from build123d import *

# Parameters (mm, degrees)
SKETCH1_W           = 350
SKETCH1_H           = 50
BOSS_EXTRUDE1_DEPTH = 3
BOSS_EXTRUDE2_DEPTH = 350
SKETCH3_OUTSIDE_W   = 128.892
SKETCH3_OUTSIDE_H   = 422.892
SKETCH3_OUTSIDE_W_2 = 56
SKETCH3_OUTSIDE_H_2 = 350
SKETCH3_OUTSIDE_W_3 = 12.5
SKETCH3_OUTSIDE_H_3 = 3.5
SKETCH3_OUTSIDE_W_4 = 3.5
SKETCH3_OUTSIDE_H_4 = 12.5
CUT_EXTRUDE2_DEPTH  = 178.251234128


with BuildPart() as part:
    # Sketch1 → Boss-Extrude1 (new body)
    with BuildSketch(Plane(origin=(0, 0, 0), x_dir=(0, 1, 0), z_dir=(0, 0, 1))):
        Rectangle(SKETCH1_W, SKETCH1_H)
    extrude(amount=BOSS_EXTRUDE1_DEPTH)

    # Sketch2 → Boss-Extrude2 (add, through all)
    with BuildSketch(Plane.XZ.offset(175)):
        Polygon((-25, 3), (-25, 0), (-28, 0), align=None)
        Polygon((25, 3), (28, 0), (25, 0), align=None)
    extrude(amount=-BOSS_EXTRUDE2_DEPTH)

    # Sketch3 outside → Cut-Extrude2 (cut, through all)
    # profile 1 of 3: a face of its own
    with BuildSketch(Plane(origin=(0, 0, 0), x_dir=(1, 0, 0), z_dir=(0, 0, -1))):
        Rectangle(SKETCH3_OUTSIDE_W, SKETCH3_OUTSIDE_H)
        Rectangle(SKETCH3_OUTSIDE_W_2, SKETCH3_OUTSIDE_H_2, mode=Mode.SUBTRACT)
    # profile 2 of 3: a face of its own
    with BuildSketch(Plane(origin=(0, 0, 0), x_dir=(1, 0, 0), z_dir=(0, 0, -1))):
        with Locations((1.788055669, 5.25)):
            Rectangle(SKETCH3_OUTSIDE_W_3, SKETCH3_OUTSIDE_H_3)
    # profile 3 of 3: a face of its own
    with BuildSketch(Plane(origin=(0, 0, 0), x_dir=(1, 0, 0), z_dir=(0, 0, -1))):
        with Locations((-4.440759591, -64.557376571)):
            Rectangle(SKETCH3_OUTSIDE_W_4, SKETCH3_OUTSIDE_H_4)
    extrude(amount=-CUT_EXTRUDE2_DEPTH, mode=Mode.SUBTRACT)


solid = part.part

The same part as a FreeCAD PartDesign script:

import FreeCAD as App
import Part
import Sketcher
Q = App.Units.Quantity

doc = App.newDocument("Part")
body = doc.addObject("PartDesign::Body", "Body")

sketch1 = doc.addObject("Sketcher::SketchObject", "Sketch")
body.addObject(sketch1)
sketch1.AttachmentSupport = (doc.XY_Plane, [""])
sketch1.MapMode = "FlatFace"
sketch1.addGeometry(Part.LineSegment(App.Vector(-25, -175, 0), App.Vector(25, -175, 0)), False)
sketch1.addGeometry(Part.LineSegment(App.Vector(25, -175, 0), App.Vector(25, 175, 0)), False)
sketch1.addGeometry(Part.LineSegment(App.Vector(25, 175, 0), App.Vector(-25, 175, 0)), False)
sketch1.addGeometry(Part.LineSegment(App.Vector(-25, 175, 0), App.Vector(-25, -175, 0)), False)
sketch1.addConstraint(Sketcher.Constraint("Coincident", 0, 2, 1, 1))
sketch1.addConstraint(Sketcher.Constraint("Coincident", 1, 2, 2, 1))
sketch1.addConstraint(Sketcher.Constraint("Coincident", 2, 2, 3, 1))
sketch1.addConstraint(Sketcher.Constraint("Coincident", 3, 2, 0, 1))
sketch1.addConstraint(Sketcher.Constraint("Horizontal", 0))
sketch1.addConstraint(Sketcher.Constraint("Vertical", 1))
sketch1.addConstraint(Sketcher.Constraint("Horizontal", 2))
sketch1.addConstraint(Sketcher.Constraint("Vertical", 3))
sketch1.addConstraint(Sketcher.Constraint("Symmetric", 0, 2, 2, 2, -1, 1))
sketch1.addConstraint(Sketcher.Constraint("DistanceX", 0, 1, 0, 2, Q("50 mm")))
sketch1.addConstraint(Sketcher.Constraint("DistanceY", 1, 1, 1, 2, Q("350 mm")))
pad1 = doc.addObject("PartDesign::Pad", "Pad")
body.addObject(pad1)
pad1.Profile = sketch1
pad1.Length = 3

sketch2 = doc.addObject("Sketcher::SketchObject", "Sketch001")
body.addObject(sketch2)
sketch2.AttachmentSupport = (doc.XZ_Plane, [""])
sketch2.MapMode = "FlatFace"
sketch2.AttachmentOffset = App.Placement(App.Vector(0, 0, 175), App.Rotation())
sketch2.addGeometry(Part.LineSegment(App.Vector(-25, 0, 0), App.Vector(-25, 3, 0)), False)
sketch2.addGeometry(Part.LineSegment(App.Vector(-25, 3, 0), App.Vector(-28, 0, 0)), False)
sketch2.addGeometry(Part.LineSegment(App.Vector(-28, 0, 0), App.Vector(-25, 0, 0)), False)
sketch2.addGeometry(Part.LineSegment(App.Vector(28, 0, 0), App.Vector(25, 3, 0)), False)
sketch2.addGeometry(Part.LineSegment(App.Vector(25, 3, 0), App.Vector(25, 0, 0)), False)
sketch2.addGeometry(Part.LineSegment(App.Vector(25, 0, 0), App.Vector(28, 0, 0)), False)
sketch2.addConstraint(Sketcher.Constraint("Coincident", 0, 2, 1, 1))
sketch2.addConstraint(Sketcher.Constraint("Coincident", 1, 2, 2, 1))
sketch2.addConstraint(Sketcher.Constraint("Coincident", 2, 2, 0, 1))
sketch2.addConstraint(Sketcher.Constraint("Coincident", 3, 2, 4, 1))
sketch2.addConstraint(Sketcher.Constraint("Coincident", 4, 2, 5, 1))
sketch2.addConstraint(Sketcher.Constraint("Coincident", 5, 2, 3, 1))
sketch2.addConstraint(Sketcher.Constraint("Vertical", 0))
sketch2.addConstraint(Sketcher.Constraint("Horizontal", 2))
sketch2.addConstraint(Sketcher.Constraint("Vertical", 4))
sketch2.addConstraint(Sketcher.Constraint("Horizontal", 5))
sketch2.addConstraint(Sketcher.Constraint("Symmetric", 2, 2, 4, 2, -1, 1))
sketch2.addConstraint(Sketcher.Constraint("Symmetric", 1, 2, 5, 2, -2))
sketch2.addConstraint(Sketcher.Constraint("Perpendicular", 1, 3))
sketch2.addConstraint(Sketcher.Constraint("Horizontal", 0, 2, 3, 2))
sketch2.addConstraint(Sketcher.Constraint("DistanceX", 2, 1, 2, 2, Q("3 mm")))
sketch2.addConstraint(Sketcher.Constraint("DistanceX", 0, 2, -1, 1, Q("25 mm")))
pad2 = doc.addObject("PartDesign::Pad", "Pad001")
body.addObject(pad2)
pad2.Profile = sketch2
pad2.Type = "UpToLast"
pad2.Reversed = True

sketch3 = doc.addObject("Sketcher::SketchObject", "Sketch002")
body.addObject(sketch3)
sketch3.AttachmentSupport = (doc.XY_Plane, [""])
sketch3.MapMode = "FlatFace"
sketch3.addGeometry(Part.LineSegment(App.Vector(-64.4, -211.4, 0), App.Vector(-64.4, 211.4, 0)), False)
sketch3.addGeometry(Part.LineSegment(App.Vector(-64.4, 211.4, 0), App.Vector(64.4, 211.4, 0)), False)
sketch3.addGeometry(Part.LineSegment(App.Vector(64.4, 211.4, 0), App.Vector(64.4, -211.4, 0)), False)
sketch3.addGeometry(Part.LineSegment(App.Vector(64.4, -211.4, 0), App.Vector(-64.4, -211.4, 0)), False)
sketch3.addGeometry(Part.LineSegment(App.Vector(28, 175, 0), App.Vector(-28, 175, 0)), False)
sketch3.addGeometry(Part.LineSegment(App.Vector(-28, 175, 0), App.Vector(-28, -175, 0)), False)
sketch3.addGeometry(Part.LineSegment(App.Vector(-28, -175, 0), App.Vector(28, -175, 0)), False)
sketch3.addGeometry(Part.LineSegment(App.Vector(28, -175, 0), App.Vector(28, 175, 0)), False)
sketch3.addGeometry(Part.LineSegment(App.Vector(-4.5, -7, 0), App.Vector(-4.5, -3.5, 0)), False)
sketch3.addGeometry(Part.LineSegment(App.Vector(-4.5, -3.5, 0), App.Vector(8, -3.5, 0)), False)
sketch3.addGeometry(Part.LineSegment(App.Vector(8, -3.5, 0), App.Vector(8, -7, 0)), False)
sketch3.addGeometry(Part.LineSegment(App.Vector(8, -7, 0), App.Vector(-4.5, -7, 0)), False)
sketch3.addGeometry(Part.LineSegment(App.Vector(-6.2, 58.3, 0), App.Vector(-6.2, 70.8, 0)), False)
sketch3.addGeometry(Part.LineSegment(App.Vector(-6.2, 70.8, 0), App.Vector(-2.7, 70.8, 0)), False)
sketch3.addGeometry(Part.LineSegment(App.Vector(-2.7, 70.8, 0), App.Vector(-2.7, 58.3, 0)), False)
sketch3.addGeometry(Part.LineSegment(App.Vector(-2.7, 58.3, 0), App.Vector(-6.2, 58.3, 0)), False)
sketch3.addConstraint(Sketcher.Constraint("Coincident", 0, 2, 1, 1))
sketch3.addConstraint(Sketcher.Constraint("Coincident", 1, 2, 2, 1))
sketch3.addConstraint(Sketcher.Constraint("Coincident", 2, 2, 3, 1))
sketch3.addConstraint(Sketcher.Constraint("Coincident", 3, 2, 0, 1))
sketch3.addConstraint(Sketcher.Constraint("Coincident", 4, 2, 5, 1))
sketch3.addConstraint(Sketcher.Constraint("Coincident", 5, 2, 6, 1))
sketch3.addConstraint(Sketcher.Constraint("Coincident", 6, 2, 7, 1))
sketch3.addConstraint(Sketcher.Constraint("Coincident", 7, 2, 4, 1))
sketch3.addConstraint(Sketcher.Constraint("Coincident", 8, 2, 9, 1))
sketch3.addConstraint(Sketcher.Constraint("Coincident", 9, 2, 10, 1))
sketch3.addConstraint(Sketcher.Constraint("Coincident", 10, 2, 11, 1))
sketch3.addConstraint(Sketcher.Constraint("Coincident", 11, 2, 8, 1))
sketch3.addConstraint(Sketcher.Constraint("Coincident", 12, 2, 13, 1))
sketch3.addConstraint(Sketcher.Constraint("Coincident", 13, 2, 14, 1))
sketch3.addConstraint(Sketcher.Constraint("Coincident", 14, 2, 15, 1))
sketch3.addConstraint(Sketcher.Constraint("Coincident", 15, 2, 12, 1))
sketch3.addConstraint(Sketcher.Constraint("Vertical", 0))
sketch3.addConstraint(Sketcher.Constraint("Horizontal", 1))
sketch3.addConstraint(Sketcher.Constraint("Vertical", 2))
sketch3.addConstraint(Sketcher.Constraint("Horizontal", 3))
sketch3.addConstraint(Sketcher.Constraint("Horizontal", 4))
sketch3.addConstraint(Sketcher.Constraint("Vertical", 5))
sketch3.addConstraint(Sketcher.Constraint("Horizontal", 6))
sketch3.addConstraint(Sketcher.Constraint("Vertical", 7))
sketch3.addConstraint(Sketcher.Constraint("Vertical", 8))
sketch3.addConstraint(Sketcher.Constraint("Horizontal", 9))
sketch3.addConstraint(Sketcher.Constraint("Vertical", 10))
sketch3.addConstraint(Sketcher.Constraint("Horizontal", 11))
sketch3.addConstraint(Sketcher.Constraint("Vertical", 12))
sketch3.addConstraint(Sketcher.Constraint("Horizontal", 13))
sketch3.addConstraint(Sketcher.Constraint("Vertical", 14))
sketch3.addConstraint(Sketcher.Constraint("Horizontal", 15))
sketch3.addConstraint(Sketcher.Constraint("Symmetric", 0, 2, 2, 2, -1, 1))
sketch3.addConstraint(Sketcher.Constraint("Symmetric", 4, 2, 6, 2, -1, 1))
sketch3.addConstraint(Sketcher.Constraint("Equal", 15, 8))
sketch3.addConstraint(Sketcher.Constraint("Equal", 11, 12))
sketch3.addConstraint(Sketcher.Constraint("DistanceX", 4, 2, 4, 1, Q("56 mm")))
sketch3.addConstraint(Sketcher.Constraint("DistanceY", 5, 2, 5, 1, Q("350 mm")))
sketch3.addConstraint(Sketcher.Constraint("DistanceX", 9, 1, 9, 2, Q("12.5 mm")))
sketch3.addConstraint(Sketcher.Constraint("DistanceX", 13, 1, 13, 2, Q("3.5 mm")))
sketch3.addConstraint(Sketcher.Constraint("DistanceY", 10, 2, -1, 1, Q("7 mm")))
sketch3.addConstraint(Sketcher.Constraint("DistanceX", 1, 1, 1, 2, Q("128.892 mm")))
sketch3.addConstraint(Sketcher.Constraint("DistanceY", 0, 1, 0, 2, Q("422.892 mm")))
sketch3.addConstraint(Sketcher.Constraint("DistanceX", 12, 2, -1, 1, Q("6.19076 mm")))
sketch3.addConstraint(Sketcher.Constraint("DistanceX", 8, 2, -1, 1, Q("4.461944 mm")))
sketch3.addConstraint(Sketcher.Constraint("DistanceY", -1, 1, 12, 2, Q("70.807377 mm")))
pocket1 = doc.addObject("PartDesign::Pocket", "Pocket")
body.addObject(pocket1)
pocket1.Profile = sketch3
pocket1.Length = 178.251234
pocket1.Reversed = True

doc.recompute()
